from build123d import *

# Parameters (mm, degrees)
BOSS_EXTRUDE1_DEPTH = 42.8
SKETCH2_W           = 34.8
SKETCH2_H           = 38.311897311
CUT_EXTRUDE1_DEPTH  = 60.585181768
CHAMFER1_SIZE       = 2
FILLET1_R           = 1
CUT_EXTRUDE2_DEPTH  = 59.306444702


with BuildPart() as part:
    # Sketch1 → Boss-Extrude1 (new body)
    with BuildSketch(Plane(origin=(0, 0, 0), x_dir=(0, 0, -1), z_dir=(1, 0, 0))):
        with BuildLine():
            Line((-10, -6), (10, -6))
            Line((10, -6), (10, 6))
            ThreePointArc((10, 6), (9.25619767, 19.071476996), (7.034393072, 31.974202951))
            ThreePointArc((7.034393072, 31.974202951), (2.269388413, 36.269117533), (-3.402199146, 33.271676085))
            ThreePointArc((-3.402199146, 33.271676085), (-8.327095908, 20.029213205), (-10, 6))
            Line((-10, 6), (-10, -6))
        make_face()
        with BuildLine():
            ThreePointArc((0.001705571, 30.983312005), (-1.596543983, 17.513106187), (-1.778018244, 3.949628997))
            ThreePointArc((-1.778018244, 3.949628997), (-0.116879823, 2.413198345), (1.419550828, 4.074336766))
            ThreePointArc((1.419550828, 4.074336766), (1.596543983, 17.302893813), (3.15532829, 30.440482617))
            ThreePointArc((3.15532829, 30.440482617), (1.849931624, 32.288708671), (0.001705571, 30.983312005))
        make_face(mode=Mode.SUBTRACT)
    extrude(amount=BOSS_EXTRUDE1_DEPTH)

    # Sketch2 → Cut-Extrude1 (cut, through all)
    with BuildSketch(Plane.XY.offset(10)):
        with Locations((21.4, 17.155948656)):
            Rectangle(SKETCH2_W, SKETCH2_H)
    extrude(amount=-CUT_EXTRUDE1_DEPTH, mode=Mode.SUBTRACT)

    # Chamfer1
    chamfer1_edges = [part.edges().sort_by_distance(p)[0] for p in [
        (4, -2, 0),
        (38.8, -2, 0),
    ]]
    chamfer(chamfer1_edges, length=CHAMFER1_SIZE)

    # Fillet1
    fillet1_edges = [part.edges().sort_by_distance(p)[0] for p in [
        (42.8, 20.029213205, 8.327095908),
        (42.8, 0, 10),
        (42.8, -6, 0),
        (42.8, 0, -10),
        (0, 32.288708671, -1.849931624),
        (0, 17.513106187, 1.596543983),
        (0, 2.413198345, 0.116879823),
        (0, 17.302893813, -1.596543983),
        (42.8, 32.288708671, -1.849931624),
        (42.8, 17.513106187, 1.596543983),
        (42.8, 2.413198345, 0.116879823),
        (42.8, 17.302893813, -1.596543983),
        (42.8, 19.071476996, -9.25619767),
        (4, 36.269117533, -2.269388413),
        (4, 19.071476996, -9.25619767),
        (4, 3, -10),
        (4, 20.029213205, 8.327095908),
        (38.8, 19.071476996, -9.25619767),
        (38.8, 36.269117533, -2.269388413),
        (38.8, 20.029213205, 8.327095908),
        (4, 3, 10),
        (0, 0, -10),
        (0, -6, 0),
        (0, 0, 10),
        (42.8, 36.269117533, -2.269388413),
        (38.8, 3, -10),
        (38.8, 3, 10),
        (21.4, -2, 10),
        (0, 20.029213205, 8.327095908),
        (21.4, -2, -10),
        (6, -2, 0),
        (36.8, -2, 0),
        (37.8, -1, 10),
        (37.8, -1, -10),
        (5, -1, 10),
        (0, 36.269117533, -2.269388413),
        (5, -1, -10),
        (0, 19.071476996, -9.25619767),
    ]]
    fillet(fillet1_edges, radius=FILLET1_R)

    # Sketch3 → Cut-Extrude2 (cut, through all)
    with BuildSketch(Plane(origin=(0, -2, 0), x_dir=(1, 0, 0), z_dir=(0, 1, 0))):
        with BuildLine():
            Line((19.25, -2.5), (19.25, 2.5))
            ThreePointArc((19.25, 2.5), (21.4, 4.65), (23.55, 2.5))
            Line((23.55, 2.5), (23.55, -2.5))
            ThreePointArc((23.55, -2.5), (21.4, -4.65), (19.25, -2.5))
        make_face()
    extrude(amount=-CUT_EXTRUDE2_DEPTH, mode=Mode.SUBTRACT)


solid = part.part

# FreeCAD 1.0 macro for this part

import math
import FreeCAD as App
import Part
import Sketcher
from FreeCAD import Vector
Q = App.Units.Quantity


def edges_at(feature, points):
    """Names of the edges that pass closest to the given points."""
    edges = feature.Shape.Edges
    near = lambda p: min(range(len(edges)), key=lambda i: edges[i].distToShape(Part.Vertex(*p))[0])
    return sorted({f"Edge{near(p) + 1}" for p in points})


def add_polygon(sketch, points):
    """Adds a closed chain of lines whose ends are joined by coincident constraints."""
    first, n = sketch.GeometryCount, len(points)
    for a, b in zip(points, points[1:] + points[:1]):
        sketch.addGeometry(Part.LineSegment(App.Vector(*a, 0), App.Vector(*b, 0)), False)
    for i in range(n):
        sketch.addConstraint(Sketcher.Constraint("Coincident", first + i, 2, first + (i + 1) % n, 1))

doc = App.newDocument("Part")
body = doc.addObject("PartDesign::Body", "Body")

sketch1 = body.newObject("Sketcher::SketchObject", "Sketch")
sketch1.AttachmentSupport = (doc.getObject("YZ_Plane"), [""])
sketch1.MapMode = "FlatFace"
sketch1.addGeometry([
    Part.LineSegment(Vector(-6, 10, 0), Vector(-6, -10, 0)),
    Part.LineSegment(Vector(-6, -10, 0), Vector(6, -10, 0)),
    Part.ArcOfCircle(Part.Circle(Vector(6, 105.2, 0), Vector(0, 0, 1), 115.2), math.radians(-90), math.radians(-76.97)),
    Part.ArcOfCircle(Part.Circle(Vector(30.7, -1.6, 0), Vector(0, 0, 1), 5.6), math.radians(-77), math.radians(63)),
    Part.ArcOfCircle(Part.Circle(Vector(6, -49.7, 0), Vector(0, 0, 1), 59.7), math.radians(63), math.radians(90)),
    Part.LineSegment(Vector(6, 10, 0), Vector(-6, 10, 0)),
    Part.ArcOfCircle(Part.Circle(Vector(9, -127.7, 0), Vector(0, 0, 1), 129.6), math.radians(80.23), math.radians(92.23)),
    Part.ArcOfCircle(Part.Circle(Vector(30.7, -1.6, 0), Vector(0, 0, 1), 1.6), math.radians(-100), math.radians(80)),
    Part.ArcOfCircle(Part.Circle(Vector(9, -127.7, 0), Vector(0, 0, 1), 126.4), math.radians(80.23), math.radians(92.23)),
    Part.ArcOfCircle(Part.Circle(Vector(4, 0.2, 0), Vector(0, 0, 1), 1.6), math.radians(92), math.radians(272)),
], False)
sketch1.addConstraint([
    Sketcher.Constraint("Coincident", 0, 2, 1, 1),
    Sketcher.Constraint("Tangent", 1, 2, 2, 1),
    Sketcher.Constraint("Tangent", 2, 2, 3, 1),
    Sketcher.Constraint("Tangent", 3, 2, 4, 1),
    Sketcher.Constraint("Tangent", 4, 2, 5, 1),
    Sketcher.Constraint("Coincident", 5, 2, 0, 1),
    Sketcher.Constraint("Tangent", 6, 1, 7, 2),
    Sketcher.Constraint("Tangent", 7, 1, 8, 1),
    Sketcher.Constraint("Tangent", 8, 2, 9, 2),
    Sketcher.Constraint("Tangent", 9, 1, 6, 2),
    Sketcher.Constraint("Vertical", 0),
    Sketcher.Constraint("Horizontal", 1),
    Sketcher.Constraint("Horizontal", 5),
    Sketcher.Constraint("Coincident", 7, 3, 3, 3),
    Sketcher.Constraint("Coincident", 8, 3, 6, 3),
    Sketcher.Constraint("Symmetric", 0, 2, 4, 2, -1, 1),
    Sketcher.Constraint("Vertical", 2, 3, 4, 3),
    Sketcher.Constraint("Radius", 3, Q("5.6 mm")),
    Sketcher.Constraint("Radius", 7, Q("1.6 mm")),
    Sketcher.Constraint("DistanceX", 1, 1, 1, 2, Q("12 mm")),
    Sketcher.Constraint("DistanceY", 0, 2, 0, 1, Q("20 mm")),
    Sketcher.Constraint("DistanceX", -1, 1, 6, 3, Q("9 mm")),
    Sketcher.Constraint("DistanceY", 6, 3, -1, 1, Q("127.716 mm")),
    Sketcher.Constraint("Radius", 2, Q("115.230046 mm")),
    Sketcher.Constraint("Radius", 4, Q("59.661947 mm")),
    Sketcher.Constraint("DistanceY", 8, 2, -1, 1, Q("1.419551 mm")),
])
pad1 = body.newObject("PartDesign::Pad", "Pad")
pad1.Profile = sketch1
pad1.Length = 42.8

sketch2 = body.newObject("Sketcher::SketchObject", "Sketch001")
sketch2.AttachmentSupport = (doc.getObject("XY_Plane"), [""])
sketch2.MapMode = "FlatFace"
sketch2.AttachmentOffset = App.Placement(Vector(0, 0, 10), App.Rotation())
add_polygon(sketch2, [(4, 36), (4, -2), (39, -2), (39, 36)])
sketch2.addConstraint([
    Sketcher.Constraint("Vertical", 0),
    Sketcher.Constraint("Horizontal", 1),
    Sketcher.Constraint("Vertical", 2),
    Sketcher.Constraint("Horizontal", 3),
    Sketcher.Constraint("DistanceX", 1, 1, 1, 2, Q("34.8 mm")),
    Sketcher.Constraint("DistanceX", -1, 1, 0, 2, Q("4 mm")),
    Sketcher.Constraint("DistanceY", 0, 2, -1, 1, Q("2 mm")),
    Sketcher.Constraint("DistanceY", 0, 2, 0, 1, Q("38.311897 mm")),
])
pocket1 = body.newObject("PartDesign::Pocket", "Pocket")
pocket1.Profile = sketch2
pocket1.Type = "ThroughAll"
doc.recompute()

chamfer = body.newObject("PartDesign::Chamfer", "Chamfer")
chamfer.Base = (pocket1, edges_at(pocket1, [(4, -2, 0), (38.8, -2, 0)]))
chamfer.Size = 2
doc.recompute()

fillet = body.newObject("PartDesign::Fillet", "Fillet")
fillet.Base = (chamfer, edges_at(chamfer, [
    (42.8, 20.029, 8.327),
    (42.8, 0, 10),
    (42.8, -6, 0),
    (42.8, 0, -10),
    (0, 32.289, -1.85),
    (0, 17.513, 1.597),
    (0, 2.413, 0.117),
    (0, 17.303, -1.597),
    (42.8, 32.289, -1.85),
    (42.8, 17.513, 1.597),
    (42.8, 2.413, 0.117),
    (42.8, 17.303, -1.597),
    (42.8, 19.071, -9.256),
    (4, 36.269, -2.269),
    (4, 19.071, -9.256),
    (4, 3, -10),
    (4, 20.029, 8.327),
    (38.8, 19.071, -9.256),
    (38.8, 36.269, -2.269),
    (38.8, 20.029, 8.327),
    (4, 3, 10),
    (0, 0, -10),
    (0, -6, 0),
    (0, 0, 10),
    (42.8, 36.269, -2.269),
    (38.8, 3, -10),
    (38.8, 3, 10),
    (21.4, -2, 10),
    (0, 20.029, 8.327),
    (21.4, -2, -10),
    (6, -2, 0),
    (36.8, -2, 0),
    (37.8, -1, 10),
    (37.8, -1, -10),
    (5, -1, 10),
    (0, 36.269, -2.269),
    (5, -1, -10),
    (0, 19.071, -9.256),
]))
fillet.Radius = 1

sketch3 = body.newObject("Sketcher::SketchObject", "Sketch002")
sketch3.AttachmentSupport = (doc.getObject("XZ_Plane"), [""])
sketch3.MapMode = "FlatFace"
sketch3.AttachmentOffset = App.Placement(Vector(0, 0, 2), App.Rotation())
sketch3.addGeometry([
    Part.LineSegment(Vector(19.2, -2.5, 0), Vector(19.2, 2.5, 0)),
    Part.ArcOfCircle(Part.Circle(Vector(21.4, 2.5, 0), Vector(0, 0, 1), 2.1), math.radians(0), math.radians(180)),
    Part.LineSegment(Vector(23.6, 2.5, 0), Vector(23.6, -2.5, 0)),
    Part.ArcOfCircle(Part.Circle(Vector(21.4, -2.5, 0), Vector(0, 0, 1), 2.1), math.radians(180), math.radians(360)),
], False)
sketch3.addConstraint([
    Sketcher.Constraint("Tangent", 0, 2, 1, 2),
    Sketcher.Constraint("Tangent", 1, 1, 2, 1),
    Sketcher.Constraint("Tangent", 2, 2, 3, 2),
    Sketcher.Constraint("Tangent", 3, 1, 0, 1),
    Sketcher.Constraint("Vertical", 0),
    Sketcher.Constraint("Vertical", 2),
    Sketcher.Constraint("DistanceY", 0, 1, 0, 2, Q("5 mm")),
    Sketcher.Constraint("Radius", 1, Q("2.15 mm")),
    Sketcher.Constraint("DistanceX", -1, 1, 1, 3, Q("21.4 mm")),
    Sketcher.Constraint("DistanceY", -1, 1, 1, 3, Q("2.5 mm")),
])
pocket2 = body.newObject("PartDesign::Pocket", "Pocket001")
pocket2.Profile = sketch3
pocket2.Type = "ThroughAll"
pocket2.Reversed = True

doc.recompute()
